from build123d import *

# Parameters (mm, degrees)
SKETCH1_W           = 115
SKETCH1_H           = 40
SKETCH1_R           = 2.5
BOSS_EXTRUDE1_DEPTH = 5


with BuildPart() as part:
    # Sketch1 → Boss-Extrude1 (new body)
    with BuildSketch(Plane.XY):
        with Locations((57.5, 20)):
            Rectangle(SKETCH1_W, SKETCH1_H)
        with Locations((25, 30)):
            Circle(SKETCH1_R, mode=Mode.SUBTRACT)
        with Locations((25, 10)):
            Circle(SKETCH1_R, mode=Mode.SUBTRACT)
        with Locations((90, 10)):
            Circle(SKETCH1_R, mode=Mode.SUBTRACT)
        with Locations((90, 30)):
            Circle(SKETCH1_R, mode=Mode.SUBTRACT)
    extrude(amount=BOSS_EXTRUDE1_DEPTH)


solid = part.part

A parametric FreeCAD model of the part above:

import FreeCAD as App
import Part
import Sketcher
from FreeCAD import Vector


def add_polygon(sketch, points):
    """Adds a closed chain of lines whose ends are joined by coincident constraints."""
    first, n = sketch.GeometryCount, len(points)
    for a, b in zip(points, points[1:] + points[:1]):
        sketch.addGeometry(Part.LineSegment(App.Vector(*a, 0), App.Vector(*b, 0)), False)
    for i in range(n):
        sketch.addConstraint(Sketcher.Constraint("Coincident", first + i, 2, first + (i + 1) % n, 1))

doc = App.newDocument("Part")
body = doc.addObject("PartDesign::Body", "Body")

# Sketch on XY plane
sketch1 = doc.addObject("Sketcher::SketchObject", "Sketch")
body.addObject(sketch1)
sketch1.AttachmentSupport = (doc.XY_Plane, [""])
sketch1.MapMode = "FlatFace"
add_polygon(sketch1, [(0, 40), (0, 0), (115, 0), (115, 40)])  # lines 0-3
sketch1.addGeometry(Part.Circle(Vector(25, 10, 0), Vector(0, 0, 1), 2.5), False)  # 4
sketch1.addGeometry(Part.Circle(Vector(90, 10, 0), Vector(0, 0, 1), 2.5), False)  # 5
sketch1.addGeometry(Part.Circle(Vector(25, 30, 0), Vector(0, 0, 1), 2.5), False)  # 6
sketch1.addGeometry(Part.Circle(Vector(90, 30, 0), Vector(0, 0, 1), 2.5), False)  # 7
sketch1.addConstraint([
    Sketcher.Constraint("Vertical", 0),
    Sketcher.Constraint("Horizontal", 1),
    Sketcher.Constraint("Vertical", 2),
    Sketcher.Constraint("Horizontal", 3),
    Sketcher.Constraint("Coincident", 0, 2, -1, 1),
    Sketcher.Constraint("Equal", 4, 5),
    Sketcher.Constraint("Equal", 5, 6),
    Sketcher.Constraint("Equal", 6, 7),
    Sketcher.Constraint("Horizontal", 4, 3, 5, 3),
    Sketcher.Constraint("Horizontal", 6, 3, 7, 3),
    Sketcher.Constraint("Vertical", 4, 3, 6, 3),
    Sketcher.Constraint("Vertical", 5, 3, 7, 3),
    Sketcher.Constraint("Diameter", 4, 5.0),
    Sketcher.Constraint("DistanceX", 1, 1, 1, 2, 115.0),
    Sketcher.Constraint("DistanceY", 0, 2, 0, 1, 40.0),
    Sketcher.Constraint("DistanceX", -1, 1, 4, 3, 25.0),
    Sketcher.Constraint("DistanceY", -1, 1, 4, 3, 10.0),
    Sketcher.Constraint("DistanceX", -1, 1, 5, 3, 90.0),
    Sketcher.Constraint("DistanceY", -1, 1, 6, 3, 30.0),
])
pad1 = doc.addObject("PartDesign::Pad", "Pad")
body.addObject(pad1)
pad1.Profile = sketch1
pad1.Length = 5

doc.recompute()
